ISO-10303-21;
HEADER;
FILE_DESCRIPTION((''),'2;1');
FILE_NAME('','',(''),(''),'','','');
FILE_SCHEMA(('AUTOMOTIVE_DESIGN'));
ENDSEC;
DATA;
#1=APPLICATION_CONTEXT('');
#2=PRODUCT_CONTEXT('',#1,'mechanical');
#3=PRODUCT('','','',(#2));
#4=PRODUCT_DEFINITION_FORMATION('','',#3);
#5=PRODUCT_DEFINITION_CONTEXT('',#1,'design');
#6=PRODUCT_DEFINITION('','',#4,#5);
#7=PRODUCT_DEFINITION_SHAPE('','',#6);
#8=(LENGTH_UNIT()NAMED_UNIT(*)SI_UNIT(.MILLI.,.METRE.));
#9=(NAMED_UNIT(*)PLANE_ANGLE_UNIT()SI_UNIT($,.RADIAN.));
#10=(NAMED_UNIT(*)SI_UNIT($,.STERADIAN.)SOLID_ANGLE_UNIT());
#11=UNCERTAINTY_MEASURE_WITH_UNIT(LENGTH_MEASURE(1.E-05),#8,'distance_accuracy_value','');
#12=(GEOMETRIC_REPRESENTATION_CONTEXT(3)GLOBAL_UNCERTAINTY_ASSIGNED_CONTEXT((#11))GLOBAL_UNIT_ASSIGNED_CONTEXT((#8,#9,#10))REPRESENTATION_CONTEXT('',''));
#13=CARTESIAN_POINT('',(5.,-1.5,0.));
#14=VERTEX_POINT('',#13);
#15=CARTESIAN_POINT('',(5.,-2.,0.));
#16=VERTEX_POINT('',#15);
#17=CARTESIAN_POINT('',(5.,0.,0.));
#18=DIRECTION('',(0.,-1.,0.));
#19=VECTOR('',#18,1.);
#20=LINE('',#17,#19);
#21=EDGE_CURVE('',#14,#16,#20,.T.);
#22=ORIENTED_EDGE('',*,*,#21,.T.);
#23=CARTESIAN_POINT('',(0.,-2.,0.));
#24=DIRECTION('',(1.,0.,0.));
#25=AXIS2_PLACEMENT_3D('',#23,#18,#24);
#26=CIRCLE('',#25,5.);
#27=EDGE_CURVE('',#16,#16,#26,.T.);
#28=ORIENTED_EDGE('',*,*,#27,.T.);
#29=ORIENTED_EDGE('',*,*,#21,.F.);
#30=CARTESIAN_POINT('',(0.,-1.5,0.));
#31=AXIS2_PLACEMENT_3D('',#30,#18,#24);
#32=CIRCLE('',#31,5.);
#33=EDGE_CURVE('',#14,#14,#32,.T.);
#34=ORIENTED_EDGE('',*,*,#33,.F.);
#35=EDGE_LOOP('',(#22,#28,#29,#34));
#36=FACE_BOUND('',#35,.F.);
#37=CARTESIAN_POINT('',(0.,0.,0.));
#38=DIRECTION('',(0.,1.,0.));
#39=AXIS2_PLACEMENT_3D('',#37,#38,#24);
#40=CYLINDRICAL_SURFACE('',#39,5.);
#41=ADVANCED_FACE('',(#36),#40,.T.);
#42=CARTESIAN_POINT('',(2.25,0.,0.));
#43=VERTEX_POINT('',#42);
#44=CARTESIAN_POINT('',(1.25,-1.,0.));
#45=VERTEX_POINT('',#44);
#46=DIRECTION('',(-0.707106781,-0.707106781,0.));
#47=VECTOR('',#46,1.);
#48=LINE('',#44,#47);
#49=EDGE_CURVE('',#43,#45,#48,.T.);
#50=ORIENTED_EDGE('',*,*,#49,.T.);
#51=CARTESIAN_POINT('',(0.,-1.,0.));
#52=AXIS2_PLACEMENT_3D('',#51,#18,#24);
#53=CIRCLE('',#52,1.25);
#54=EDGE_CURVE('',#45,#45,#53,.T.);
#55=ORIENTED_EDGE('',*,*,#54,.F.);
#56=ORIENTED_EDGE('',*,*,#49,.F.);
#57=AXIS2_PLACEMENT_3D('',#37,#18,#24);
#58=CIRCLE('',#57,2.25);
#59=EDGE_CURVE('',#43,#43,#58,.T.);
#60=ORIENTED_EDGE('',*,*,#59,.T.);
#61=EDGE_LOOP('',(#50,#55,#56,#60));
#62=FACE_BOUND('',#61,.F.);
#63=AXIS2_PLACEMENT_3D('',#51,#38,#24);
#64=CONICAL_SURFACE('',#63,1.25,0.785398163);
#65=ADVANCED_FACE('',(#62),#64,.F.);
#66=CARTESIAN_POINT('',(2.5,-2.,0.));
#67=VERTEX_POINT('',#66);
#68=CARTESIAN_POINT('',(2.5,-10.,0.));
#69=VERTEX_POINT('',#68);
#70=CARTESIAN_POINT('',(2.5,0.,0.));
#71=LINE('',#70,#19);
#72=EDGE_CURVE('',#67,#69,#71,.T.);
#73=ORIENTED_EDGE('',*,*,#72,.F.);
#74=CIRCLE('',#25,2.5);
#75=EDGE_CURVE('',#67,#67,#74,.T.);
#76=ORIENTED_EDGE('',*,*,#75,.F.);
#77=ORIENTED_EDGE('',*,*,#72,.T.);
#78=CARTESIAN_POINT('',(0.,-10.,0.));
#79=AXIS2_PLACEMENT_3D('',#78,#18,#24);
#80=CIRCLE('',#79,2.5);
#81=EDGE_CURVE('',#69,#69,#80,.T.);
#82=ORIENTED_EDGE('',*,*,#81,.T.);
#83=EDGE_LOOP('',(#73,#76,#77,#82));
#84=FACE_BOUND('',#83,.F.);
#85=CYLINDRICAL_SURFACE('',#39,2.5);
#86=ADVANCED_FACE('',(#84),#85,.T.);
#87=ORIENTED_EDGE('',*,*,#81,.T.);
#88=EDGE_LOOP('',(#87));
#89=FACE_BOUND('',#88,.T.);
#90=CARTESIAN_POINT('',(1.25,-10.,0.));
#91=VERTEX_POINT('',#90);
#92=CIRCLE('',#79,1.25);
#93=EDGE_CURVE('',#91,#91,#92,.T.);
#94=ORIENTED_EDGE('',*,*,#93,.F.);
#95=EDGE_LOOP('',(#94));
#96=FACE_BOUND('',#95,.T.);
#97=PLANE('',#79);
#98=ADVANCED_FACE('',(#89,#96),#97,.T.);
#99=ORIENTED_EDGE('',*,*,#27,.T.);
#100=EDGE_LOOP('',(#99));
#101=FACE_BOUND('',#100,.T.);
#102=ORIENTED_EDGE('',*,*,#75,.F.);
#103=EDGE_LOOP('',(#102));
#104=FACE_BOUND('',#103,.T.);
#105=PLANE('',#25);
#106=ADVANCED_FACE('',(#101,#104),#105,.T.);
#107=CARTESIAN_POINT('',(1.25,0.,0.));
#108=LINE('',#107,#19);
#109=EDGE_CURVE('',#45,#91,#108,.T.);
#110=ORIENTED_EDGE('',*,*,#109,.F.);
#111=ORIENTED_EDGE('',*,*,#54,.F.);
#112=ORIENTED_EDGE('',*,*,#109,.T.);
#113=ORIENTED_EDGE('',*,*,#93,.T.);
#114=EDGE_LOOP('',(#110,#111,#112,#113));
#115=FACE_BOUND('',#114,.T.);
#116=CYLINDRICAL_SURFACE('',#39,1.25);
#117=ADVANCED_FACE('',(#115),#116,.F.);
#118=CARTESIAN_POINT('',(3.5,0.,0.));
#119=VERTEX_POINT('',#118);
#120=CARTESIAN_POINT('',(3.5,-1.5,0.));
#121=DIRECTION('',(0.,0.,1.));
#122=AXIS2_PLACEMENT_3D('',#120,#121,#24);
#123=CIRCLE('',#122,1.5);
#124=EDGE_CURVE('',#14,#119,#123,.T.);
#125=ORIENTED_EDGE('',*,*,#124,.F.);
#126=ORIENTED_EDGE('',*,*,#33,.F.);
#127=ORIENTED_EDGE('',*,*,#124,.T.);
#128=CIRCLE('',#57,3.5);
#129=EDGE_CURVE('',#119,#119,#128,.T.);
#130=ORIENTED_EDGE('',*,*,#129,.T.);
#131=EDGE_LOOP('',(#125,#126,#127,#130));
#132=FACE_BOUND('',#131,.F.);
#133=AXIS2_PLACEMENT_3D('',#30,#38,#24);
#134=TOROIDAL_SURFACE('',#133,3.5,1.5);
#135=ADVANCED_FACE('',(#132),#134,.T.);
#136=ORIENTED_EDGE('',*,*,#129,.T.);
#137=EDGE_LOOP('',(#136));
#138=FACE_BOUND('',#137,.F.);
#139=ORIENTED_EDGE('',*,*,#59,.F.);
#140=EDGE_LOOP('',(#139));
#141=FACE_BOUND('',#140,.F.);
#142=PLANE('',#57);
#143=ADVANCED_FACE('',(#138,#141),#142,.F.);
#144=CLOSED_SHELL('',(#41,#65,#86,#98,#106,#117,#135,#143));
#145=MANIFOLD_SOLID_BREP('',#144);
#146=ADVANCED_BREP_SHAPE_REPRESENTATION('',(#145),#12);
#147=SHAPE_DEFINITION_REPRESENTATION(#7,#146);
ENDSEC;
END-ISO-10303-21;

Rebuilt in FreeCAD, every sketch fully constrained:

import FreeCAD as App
import Part
import Sketcher

V = App.Vector


def edges_at(feature, points):
    """Names of the edges that pass closest to the given points."""
    edges = feature.Shape.Edges
    near = lambda p: min(range(len(edges)), key=lambda i: edges[i].distToShape(Part.Vertex(*p))[0])
    return sorted({f"Edge{near(p) + 1}" for p in points})

doc = App.newDocument("Part")
body = doc.addObject("PartDesign::Body", "Body")

# Sketch on XZ plane
sketch1 = doc.addObject("Sketcher::SketchObject", "Sketch")
body.addObject(sketch1)
sketch1.AttachmentSupport = (doc.XZ_Plane, [""])
sketch1.MapMode = "FlatFace"
sketch1.addGeometry([
    Part.Circle(V(0, 0, 0), V(0, 0, 1), 2.5),
    Part.Circle(V(0, 0, 0), V(0, 0, 1), 1.2),
], False)
sketch1.addConstraint([
    Sketcher.Constraint("Coincident", 0, 3, -1, 1),
    Sketcher.Constraint("Coincident", 1, 3, -1, 1),
    Sketcher.Constraint("Diameter", 0, 5.0),
    Sketcher.Constraint("Diameter", 1, 2.5),
])
pad1 = doc.addObject("PartDesign::Pad", "Pad")
body.addObject(pad1)
pad1.Profile = sketch1
pad1.Length = 10

# Sketch on XZ plane
sketch2 = doc.addObject("Sketcher::SketchObject", "Sketch001")
body.addObject(sketch2)
sketch2.AttachmentSupport = (doc.XZ_Plane, [""])
sketch2.MapMode = "FlatFace"
sketch2.addGeometry([
    Part.Circle(V(0, 0, 0), V(0, 0, 1), 5),
    Part.Circle(V(0, 0, 0), V(0, 0, 1), 2.5),
], False)
sketch2.addConstraint([
    Sketcher.Constraint("Coincident", 0, 3, -1, 1),
    Sketcher.Constraint("Coincident", 1, 3, -1, 1),
    Sketcher.Constraint("Diameter", 0, 10.0),
    Sketcher.Constraint("Diameter", 1, 5.0),
])
pad2 = doc.addObject("PartDesign::Pad", "Pad001")
body.addObject(pad2)
pad2.Profile = sketch2
pad2.Length = 2
doc.recompute()

fillet = doc.addObject("PartDesign::Fillet", "Fillet")
body.addObject(fillet)
fillet.Base = (pad2, edges_at(pad2, [(-5, 0, 0)]))
fillet.Radius = 1.5
doc.recompute()

chamfer = doc.addObject("PartDesign::Chamfer", "Chamfer")
body.addObject(chamfer)
chamfer.Base = (fillet, edges_at(fillet, [(-1.25, 0, 0)]))
chamfer.Size = 1

doc.recompute()
